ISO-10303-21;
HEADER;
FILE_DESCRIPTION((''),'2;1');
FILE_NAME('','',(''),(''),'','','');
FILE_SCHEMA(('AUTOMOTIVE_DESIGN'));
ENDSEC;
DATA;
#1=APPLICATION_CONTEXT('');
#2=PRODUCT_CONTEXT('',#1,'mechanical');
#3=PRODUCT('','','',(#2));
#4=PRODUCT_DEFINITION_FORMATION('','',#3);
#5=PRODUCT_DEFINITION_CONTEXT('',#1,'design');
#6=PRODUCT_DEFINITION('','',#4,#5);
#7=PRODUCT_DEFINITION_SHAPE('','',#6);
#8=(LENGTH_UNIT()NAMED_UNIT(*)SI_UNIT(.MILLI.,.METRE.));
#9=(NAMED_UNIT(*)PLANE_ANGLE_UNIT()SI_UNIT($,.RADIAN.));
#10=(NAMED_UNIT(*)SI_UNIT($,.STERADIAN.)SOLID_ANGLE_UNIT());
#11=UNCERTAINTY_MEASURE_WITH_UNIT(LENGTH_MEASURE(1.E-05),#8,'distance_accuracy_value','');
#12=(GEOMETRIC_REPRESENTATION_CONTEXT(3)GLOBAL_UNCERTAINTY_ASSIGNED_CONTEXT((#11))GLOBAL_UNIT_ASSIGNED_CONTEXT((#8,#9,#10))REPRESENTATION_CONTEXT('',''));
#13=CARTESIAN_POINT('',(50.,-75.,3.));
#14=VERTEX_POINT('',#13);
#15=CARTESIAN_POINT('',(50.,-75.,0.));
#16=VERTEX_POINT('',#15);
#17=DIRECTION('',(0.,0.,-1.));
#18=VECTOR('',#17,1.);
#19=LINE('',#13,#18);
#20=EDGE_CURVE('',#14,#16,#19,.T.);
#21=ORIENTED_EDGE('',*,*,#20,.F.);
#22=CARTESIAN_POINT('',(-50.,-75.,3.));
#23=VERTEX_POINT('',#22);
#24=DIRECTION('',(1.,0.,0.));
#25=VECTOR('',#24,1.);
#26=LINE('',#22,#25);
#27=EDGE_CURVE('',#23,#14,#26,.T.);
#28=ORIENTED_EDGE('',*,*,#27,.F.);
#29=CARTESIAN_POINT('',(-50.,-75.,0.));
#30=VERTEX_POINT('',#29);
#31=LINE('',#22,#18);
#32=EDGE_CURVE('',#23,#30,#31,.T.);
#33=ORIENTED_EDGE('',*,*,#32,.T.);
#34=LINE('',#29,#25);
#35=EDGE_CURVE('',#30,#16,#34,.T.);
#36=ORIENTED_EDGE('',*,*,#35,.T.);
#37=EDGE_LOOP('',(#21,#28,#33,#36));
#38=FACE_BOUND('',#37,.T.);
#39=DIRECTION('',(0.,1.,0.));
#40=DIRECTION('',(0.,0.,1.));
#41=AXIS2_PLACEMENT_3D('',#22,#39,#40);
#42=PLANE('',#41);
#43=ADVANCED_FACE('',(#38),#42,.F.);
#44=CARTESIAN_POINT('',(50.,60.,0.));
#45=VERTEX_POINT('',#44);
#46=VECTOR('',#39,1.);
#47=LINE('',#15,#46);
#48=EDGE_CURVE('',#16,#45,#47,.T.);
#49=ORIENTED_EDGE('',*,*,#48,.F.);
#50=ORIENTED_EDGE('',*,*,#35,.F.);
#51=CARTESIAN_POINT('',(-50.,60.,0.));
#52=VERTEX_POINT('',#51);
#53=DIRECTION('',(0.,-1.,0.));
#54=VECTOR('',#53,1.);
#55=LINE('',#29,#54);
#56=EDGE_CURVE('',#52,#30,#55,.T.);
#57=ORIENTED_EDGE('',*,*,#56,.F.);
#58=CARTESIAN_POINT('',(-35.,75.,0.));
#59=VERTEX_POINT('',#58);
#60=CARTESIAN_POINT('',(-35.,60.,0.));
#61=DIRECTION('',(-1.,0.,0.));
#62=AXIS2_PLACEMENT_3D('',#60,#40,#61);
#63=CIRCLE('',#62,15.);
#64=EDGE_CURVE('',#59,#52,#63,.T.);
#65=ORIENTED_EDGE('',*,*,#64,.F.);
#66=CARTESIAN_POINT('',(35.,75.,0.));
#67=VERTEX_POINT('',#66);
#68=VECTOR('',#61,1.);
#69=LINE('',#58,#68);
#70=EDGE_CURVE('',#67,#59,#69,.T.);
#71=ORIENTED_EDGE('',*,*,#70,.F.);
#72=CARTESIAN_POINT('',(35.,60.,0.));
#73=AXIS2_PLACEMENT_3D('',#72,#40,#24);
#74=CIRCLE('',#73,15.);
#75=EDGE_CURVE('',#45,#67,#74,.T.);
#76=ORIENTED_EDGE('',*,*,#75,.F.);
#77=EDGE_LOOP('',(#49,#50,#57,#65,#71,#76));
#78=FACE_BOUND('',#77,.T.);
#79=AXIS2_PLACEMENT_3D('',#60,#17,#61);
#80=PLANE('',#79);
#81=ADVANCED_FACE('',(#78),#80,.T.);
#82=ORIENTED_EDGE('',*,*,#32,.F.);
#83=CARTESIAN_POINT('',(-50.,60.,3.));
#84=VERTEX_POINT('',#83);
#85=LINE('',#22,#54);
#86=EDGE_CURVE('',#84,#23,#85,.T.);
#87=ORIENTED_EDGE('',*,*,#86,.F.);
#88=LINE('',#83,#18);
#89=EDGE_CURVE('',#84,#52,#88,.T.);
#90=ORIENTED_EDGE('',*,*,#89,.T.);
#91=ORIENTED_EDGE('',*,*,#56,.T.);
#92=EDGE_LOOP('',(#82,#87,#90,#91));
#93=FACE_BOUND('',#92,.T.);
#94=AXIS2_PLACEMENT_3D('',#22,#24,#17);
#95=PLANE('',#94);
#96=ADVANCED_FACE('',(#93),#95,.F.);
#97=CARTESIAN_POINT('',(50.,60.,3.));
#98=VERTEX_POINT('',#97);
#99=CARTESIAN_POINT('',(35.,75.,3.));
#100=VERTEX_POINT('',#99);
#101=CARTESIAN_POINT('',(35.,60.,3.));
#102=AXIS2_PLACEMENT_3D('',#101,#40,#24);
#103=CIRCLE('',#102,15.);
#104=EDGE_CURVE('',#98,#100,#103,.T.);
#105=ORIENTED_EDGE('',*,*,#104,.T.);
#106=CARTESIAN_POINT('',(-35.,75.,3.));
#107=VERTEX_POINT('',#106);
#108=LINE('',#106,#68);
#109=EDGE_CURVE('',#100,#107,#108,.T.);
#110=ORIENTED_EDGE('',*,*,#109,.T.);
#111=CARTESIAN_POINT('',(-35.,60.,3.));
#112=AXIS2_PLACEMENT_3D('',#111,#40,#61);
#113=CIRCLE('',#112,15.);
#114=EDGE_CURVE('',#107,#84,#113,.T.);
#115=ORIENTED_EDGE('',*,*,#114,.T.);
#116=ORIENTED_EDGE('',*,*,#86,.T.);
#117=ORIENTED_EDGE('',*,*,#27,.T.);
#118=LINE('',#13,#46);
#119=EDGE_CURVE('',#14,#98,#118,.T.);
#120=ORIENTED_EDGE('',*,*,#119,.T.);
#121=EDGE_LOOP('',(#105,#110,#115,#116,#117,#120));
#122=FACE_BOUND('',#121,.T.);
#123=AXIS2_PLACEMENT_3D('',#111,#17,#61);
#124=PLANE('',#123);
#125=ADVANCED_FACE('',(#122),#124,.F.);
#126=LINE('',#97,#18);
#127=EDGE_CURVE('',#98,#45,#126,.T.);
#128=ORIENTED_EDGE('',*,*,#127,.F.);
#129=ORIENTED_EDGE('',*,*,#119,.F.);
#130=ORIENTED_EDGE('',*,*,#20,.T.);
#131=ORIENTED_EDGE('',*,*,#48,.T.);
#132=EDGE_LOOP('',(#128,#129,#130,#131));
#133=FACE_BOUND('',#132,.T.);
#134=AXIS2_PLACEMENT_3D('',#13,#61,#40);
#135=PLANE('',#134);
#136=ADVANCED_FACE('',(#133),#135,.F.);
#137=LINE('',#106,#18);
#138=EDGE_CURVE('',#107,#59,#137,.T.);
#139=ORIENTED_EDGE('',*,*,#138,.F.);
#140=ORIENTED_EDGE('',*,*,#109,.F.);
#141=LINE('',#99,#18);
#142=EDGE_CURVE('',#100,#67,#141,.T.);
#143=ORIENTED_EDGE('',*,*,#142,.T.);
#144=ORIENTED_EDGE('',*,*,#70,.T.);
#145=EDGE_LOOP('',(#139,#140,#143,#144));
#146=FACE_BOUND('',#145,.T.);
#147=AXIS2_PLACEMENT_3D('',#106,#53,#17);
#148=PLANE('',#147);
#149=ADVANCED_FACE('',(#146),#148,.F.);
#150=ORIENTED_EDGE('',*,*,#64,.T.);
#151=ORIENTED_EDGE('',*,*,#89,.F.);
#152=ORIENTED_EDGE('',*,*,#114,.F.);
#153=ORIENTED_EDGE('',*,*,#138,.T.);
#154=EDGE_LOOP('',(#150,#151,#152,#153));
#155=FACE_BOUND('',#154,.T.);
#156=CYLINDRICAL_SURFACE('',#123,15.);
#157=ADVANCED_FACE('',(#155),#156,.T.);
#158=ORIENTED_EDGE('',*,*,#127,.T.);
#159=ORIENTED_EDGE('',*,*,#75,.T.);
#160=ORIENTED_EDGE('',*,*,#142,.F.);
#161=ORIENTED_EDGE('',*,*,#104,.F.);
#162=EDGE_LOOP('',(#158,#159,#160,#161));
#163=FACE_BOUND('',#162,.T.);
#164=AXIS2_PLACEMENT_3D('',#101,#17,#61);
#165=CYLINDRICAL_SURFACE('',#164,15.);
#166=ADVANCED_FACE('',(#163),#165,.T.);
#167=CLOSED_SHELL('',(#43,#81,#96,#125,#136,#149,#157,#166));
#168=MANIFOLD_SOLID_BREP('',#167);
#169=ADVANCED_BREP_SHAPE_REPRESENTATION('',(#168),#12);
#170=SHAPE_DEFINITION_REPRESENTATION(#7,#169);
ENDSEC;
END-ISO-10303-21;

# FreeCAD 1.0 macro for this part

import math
import FreeCAD as App
import Part
import Sketcher
Q = App.Units.Quantity

doc = App.newDocument("Part")
body = doc.addObject("PartDesign::Body", "Body")

# Sketch on XY plane
sketch1 = body.newObject("Sketcher::SketchObject", "Sketch")
sketch1.AttachmentSupport = (doc.getObject("XY_Plane"), [""])
sketch1.MapMode = "FlatFace"
sketch1.addGeometry([
    Part.LineSegment(App.Vector(-50, -75, 0), App.Vector(50, -75, 0)),  # 0
    Part.LineSegment(App.Vector(50, -75, 0), App.Vector(50, 60, 0)),  # 1
    Part.ArcOfCircle(Part.Circle(App.Vector(35, 60, 0), App.Vector(0, 0, 1), 15), math.radians(0), math.radians(90)),  # 2
    Part.LineSegment(App.Vector(35, 75, 0), App.Vector(-35, 75, 0)),  # 3
    Part.ArcOfCircle(Part.Circle(App.Vector(-35, 60, 0), App.Vector(0, 0, 1), 15), math.radians(90), math.radians(180)),  # 4
    Part.LineSegment(App.Vector(-50, 60, 0), App.Vector(-50, -75, 0)),  # 5
], False)
sketch1.addConstraint([
    Sketcher.Constraint("Coincident", 0, 2, 1, 1),
    Sketcher.Constraint("Tangent", 1, 2, 2, 1),
    Sketcher.Constraint("Tangent", 2, 2, 3, 1),
    Sketcher.Constraint("Tangent", 3, 2, 4, 1),
    Sketcher.Constraint("Tangent", 4, 2, 5, 1),
    Sketcher.Constraint("Coincident", 5, 2, 0, 1),
    Sketcher.Constraint("Horizontal", 0),
    Sketcher.Constraint("Vertical", 1),
    Sketcher.Constraint("Horizontal", 3),
    Sketcher.Constraint("Vertical", 5),
    Sketcher.Constraint("Equal", 2, 4),
    Sketcher.Constraint("Radius", 2, Q("15 mm")),
    Sketcher.Constraint("DistanceX", 0, 1, 0, 2, Q("100 mm")),
    Sketcher.Constraint("DistanceY", 1, 1, 1, 2, Q("135 mm")),
    Sketcher.Constraint("DistanceX", -1, 1, 2, 3, Q("35 mm")),
    Sketcher.Constraint("DistanceY", -1, 1, 2, 3, Q("60 mm")),
])
pad1 = body.newObject("PartDesign::Pad", "Pad")
pad1.Profile = sketch1
pad1.Length = 3

doc.recompute()
